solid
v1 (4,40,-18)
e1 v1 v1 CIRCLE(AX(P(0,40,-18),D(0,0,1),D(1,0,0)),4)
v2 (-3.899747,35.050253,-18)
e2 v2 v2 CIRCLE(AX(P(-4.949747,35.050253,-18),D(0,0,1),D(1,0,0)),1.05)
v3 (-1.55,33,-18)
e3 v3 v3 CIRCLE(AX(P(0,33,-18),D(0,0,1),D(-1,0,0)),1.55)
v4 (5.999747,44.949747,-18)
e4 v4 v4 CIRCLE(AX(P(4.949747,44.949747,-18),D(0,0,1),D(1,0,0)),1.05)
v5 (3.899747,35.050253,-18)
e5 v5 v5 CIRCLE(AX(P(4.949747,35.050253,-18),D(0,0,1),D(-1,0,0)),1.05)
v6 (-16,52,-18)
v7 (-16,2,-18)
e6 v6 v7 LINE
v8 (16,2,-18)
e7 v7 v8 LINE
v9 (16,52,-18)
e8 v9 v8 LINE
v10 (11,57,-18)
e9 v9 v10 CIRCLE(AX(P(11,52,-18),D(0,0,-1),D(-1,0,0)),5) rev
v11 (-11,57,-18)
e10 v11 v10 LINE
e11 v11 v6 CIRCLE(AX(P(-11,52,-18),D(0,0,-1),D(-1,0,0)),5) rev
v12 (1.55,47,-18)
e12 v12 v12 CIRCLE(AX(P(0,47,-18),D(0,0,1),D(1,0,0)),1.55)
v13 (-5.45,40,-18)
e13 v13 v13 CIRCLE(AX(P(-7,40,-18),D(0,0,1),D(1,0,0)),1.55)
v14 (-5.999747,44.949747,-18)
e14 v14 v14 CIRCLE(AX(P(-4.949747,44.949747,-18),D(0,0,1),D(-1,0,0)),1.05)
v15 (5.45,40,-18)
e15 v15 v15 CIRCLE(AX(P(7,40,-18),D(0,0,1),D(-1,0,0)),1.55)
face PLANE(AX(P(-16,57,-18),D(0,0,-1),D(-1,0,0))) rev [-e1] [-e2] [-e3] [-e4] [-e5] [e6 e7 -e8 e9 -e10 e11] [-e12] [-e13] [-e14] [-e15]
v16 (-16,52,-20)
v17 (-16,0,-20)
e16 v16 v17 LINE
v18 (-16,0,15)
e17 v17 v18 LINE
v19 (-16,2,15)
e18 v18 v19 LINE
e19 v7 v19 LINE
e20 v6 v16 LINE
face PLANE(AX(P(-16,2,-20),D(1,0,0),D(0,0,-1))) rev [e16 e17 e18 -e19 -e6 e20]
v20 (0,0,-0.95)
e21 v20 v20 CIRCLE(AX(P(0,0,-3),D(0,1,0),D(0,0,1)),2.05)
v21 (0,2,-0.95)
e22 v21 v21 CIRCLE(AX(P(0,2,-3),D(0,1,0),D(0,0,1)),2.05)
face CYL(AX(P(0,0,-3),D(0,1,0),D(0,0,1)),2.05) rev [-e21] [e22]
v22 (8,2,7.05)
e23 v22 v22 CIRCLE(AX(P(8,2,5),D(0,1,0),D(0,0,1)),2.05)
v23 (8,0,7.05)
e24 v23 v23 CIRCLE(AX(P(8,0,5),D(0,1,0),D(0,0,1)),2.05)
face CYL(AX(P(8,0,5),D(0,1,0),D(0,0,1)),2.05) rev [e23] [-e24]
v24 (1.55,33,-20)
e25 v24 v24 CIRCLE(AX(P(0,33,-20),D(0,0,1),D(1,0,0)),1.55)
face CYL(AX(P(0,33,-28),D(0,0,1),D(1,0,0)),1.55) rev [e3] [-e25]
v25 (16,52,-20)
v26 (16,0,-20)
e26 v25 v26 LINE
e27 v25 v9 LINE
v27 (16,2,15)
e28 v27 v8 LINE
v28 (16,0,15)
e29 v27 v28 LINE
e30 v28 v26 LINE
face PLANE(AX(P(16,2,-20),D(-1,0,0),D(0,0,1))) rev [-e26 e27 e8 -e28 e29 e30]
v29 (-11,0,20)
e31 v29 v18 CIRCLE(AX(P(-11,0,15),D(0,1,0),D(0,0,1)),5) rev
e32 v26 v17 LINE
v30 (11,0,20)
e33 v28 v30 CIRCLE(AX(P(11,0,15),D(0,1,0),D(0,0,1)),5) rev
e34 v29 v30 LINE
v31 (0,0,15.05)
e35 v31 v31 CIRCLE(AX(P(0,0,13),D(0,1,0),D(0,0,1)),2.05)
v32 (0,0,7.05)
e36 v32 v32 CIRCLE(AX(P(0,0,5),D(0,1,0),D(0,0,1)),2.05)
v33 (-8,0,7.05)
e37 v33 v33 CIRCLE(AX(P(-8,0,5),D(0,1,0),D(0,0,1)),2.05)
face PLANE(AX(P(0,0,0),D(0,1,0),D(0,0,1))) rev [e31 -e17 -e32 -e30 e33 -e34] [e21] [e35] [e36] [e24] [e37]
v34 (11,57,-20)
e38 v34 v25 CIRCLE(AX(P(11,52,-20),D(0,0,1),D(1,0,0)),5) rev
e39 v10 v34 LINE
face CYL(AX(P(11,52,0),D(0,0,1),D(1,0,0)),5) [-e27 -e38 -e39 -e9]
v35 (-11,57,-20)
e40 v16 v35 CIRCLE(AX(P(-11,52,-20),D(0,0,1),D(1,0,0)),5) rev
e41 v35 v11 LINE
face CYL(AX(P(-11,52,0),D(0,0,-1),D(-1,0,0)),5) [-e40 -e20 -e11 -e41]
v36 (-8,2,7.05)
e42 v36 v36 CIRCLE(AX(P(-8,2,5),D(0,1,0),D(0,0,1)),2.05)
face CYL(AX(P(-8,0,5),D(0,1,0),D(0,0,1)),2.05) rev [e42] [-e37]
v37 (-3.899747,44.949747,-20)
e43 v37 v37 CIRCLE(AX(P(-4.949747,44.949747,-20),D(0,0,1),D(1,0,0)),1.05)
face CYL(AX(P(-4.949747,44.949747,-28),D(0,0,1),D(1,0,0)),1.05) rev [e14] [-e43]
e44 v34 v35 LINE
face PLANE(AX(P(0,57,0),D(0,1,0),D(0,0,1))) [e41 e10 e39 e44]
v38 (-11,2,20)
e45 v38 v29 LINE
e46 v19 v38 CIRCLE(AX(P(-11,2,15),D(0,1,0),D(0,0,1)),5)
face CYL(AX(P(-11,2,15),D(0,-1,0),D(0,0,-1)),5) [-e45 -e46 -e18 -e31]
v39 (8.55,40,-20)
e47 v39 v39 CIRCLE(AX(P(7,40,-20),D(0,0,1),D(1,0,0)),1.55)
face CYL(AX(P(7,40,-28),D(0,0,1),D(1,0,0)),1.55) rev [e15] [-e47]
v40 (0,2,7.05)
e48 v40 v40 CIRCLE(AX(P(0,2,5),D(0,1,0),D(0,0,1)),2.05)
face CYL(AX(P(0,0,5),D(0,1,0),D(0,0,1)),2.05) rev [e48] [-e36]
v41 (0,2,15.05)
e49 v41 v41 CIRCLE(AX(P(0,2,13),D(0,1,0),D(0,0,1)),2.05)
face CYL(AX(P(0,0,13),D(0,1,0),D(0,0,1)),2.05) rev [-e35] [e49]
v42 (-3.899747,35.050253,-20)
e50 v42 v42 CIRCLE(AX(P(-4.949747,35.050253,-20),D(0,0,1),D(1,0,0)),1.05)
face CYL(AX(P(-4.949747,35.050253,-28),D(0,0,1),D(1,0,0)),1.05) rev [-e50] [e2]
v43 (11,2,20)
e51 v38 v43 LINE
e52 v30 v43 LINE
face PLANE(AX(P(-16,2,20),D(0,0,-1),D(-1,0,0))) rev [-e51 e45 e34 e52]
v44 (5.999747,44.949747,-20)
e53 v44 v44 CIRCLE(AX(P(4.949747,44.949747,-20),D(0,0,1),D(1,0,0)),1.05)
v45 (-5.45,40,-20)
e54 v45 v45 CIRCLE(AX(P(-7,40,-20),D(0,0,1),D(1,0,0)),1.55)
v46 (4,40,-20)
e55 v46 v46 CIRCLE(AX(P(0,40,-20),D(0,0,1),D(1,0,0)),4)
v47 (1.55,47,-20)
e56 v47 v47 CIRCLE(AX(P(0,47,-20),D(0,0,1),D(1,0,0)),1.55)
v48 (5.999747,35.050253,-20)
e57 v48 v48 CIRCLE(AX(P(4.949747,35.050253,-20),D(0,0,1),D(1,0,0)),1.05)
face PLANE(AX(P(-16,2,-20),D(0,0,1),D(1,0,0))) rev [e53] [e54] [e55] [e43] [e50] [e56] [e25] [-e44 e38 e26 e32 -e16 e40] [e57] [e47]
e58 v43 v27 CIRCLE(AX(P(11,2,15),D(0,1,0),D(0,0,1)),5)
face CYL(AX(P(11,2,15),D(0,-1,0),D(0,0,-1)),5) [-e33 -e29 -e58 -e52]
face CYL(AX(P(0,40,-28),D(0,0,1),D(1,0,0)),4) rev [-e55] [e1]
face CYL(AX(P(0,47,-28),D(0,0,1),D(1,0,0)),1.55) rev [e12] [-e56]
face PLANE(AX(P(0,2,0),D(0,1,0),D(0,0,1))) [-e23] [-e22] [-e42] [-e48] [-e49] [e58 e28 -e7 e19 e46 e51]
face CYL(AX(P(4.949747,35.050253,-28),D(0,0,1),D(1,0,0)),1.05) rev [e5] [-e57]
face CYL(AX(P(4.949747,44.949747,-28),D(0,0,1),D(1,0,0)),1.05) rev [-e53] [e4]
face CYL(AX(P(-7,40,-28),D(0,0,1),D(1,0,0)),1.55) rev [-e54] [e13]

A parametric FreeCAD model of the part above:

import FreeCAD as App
import Part
import Sketcher


def edges_at(feature, points):
    """Names of the edges that pass closest to the given points."""
    edges = feature.Shape.Edges
    near = lambda p: min(range(len(edges)), key=lambda i: edges[i].distToShape(Part.Vertex(*p))[0])
    return sorted({f"Edge{near(p) + 1}" for p in points})

doc = App.newDocument("Part")
body = doc.addObject("PartDesign::Body", "Body")

# Sketch on XZ plane
sketch1 = doc.addObject("Sketcher::SketchObject", "Sketch")
body.addObject(sketch1)
sketch1.AttachmentSupport = (doc.XZ_Plane, [""])
sketch1.MapMode = "FlatFace"
sketch1.addGeometry([
    Part.LineSegment(App.Vector(-16, -20, 0), App.Vector(-16, 20, 0)),
    Part.LineSegment(App.Vector(-16, 20, 0), App.Vector(16, 20, 0)),
    Part.LineSegment(App.Vector(16, 20, 0), App.Vector(16, -20, 0)),
    Part.LineSegment(App.Vector(16, -20, 0), App.Vector(-16, -20, 0)),
], False)
sketch1.addConstraint([
    Sketcher.Constraint("Coincident", 0, 2, 1, 1),
    Sketcher.Constraint("Coincident", 1, 2, 2, 1),
    Sketcher.Constraint("Coincident", 2, 2, 3, 1),
    Sketcher.Constraint("Coincident", 3, 2, 0, 1),
    Sketcher.Constraint("Vertical", 0),
    Sketcher.Constraint("Horizontal", 1),
    Sketcher.Constraint("Vertical", 2),
    Sketcher.Constraint("Horizontal", 3),
    Sketcher.Constraint("Symmetric", 0, 2, 2, 2, -1, 1),
    Sketcher.Constraint("DistanceX", 1, 1, 1, 2, 32.0),
    Sketcher.Constraint("DistanceY", 0, 1, 0, 2, 40.0),
])
pad1 = doc.addObject("PartDesign::Pad", "Pad")
body.addObject(pad1)
pad1.Profile = sketch1
pad1.Length = 2
pad1.Reversed = True

# Sketch on XZ plane
sketch2 = doc.addObject("Sketcher::SketchObject", "Sketch001")
body.addObject(sketch2)
sketch2.AttachmentSupport = (doc.XZ_Plane, [""])
sketch2.MapMode = "FlatFace"
sketch2.AttachmentOffset = App.Placement(App.Vector(0, 0, -2), App.Rotation())
sketch2.addGeometry([
    Part.LineSegment(App.Vector(-16, -20, 0), App.Vector(-16, -18, 0)),
    Part.LineSegment(App.Vector(-16, -18, 0), App.Vector(16, -18, 0)),
    Part.LineSegment(App.Vector(16, -18, 0), App.Vector(16, -20, 0)),
    Part.LineSegment(App.Vector(16, -20, 0), App.Vector(-16, -20, 0)),
], False)
sketch2.addConstraint([
    Sketcher.Constraint("Coincident", 0, 2, 1, 1),
    Sketcher.Constraint("Coincident", 1, 2, 2, 1),
    Sketcher.Constraint("Coincident", 2, 2, 3, 1),
    Sketcher.Constraint("Coincident", 3, 2, 0, 1),
    Sketcher.Constraint("Vertical", 0),
    Sketcher.Constraint("Horizontal", 1),
    Sketcher.Constraint("Vertical", 2),
    Sketcher.Constraint("Horizontal", 3),
    Sketcher.Constraint("DistanceX", 1, 1, 1, 2, 32.0),
    Sketcher.Constraint("DistanceY", 0, 1, 0, 2, 2.0),
    Sketcher.Constraint("DistanceX", 0, 2, -1, 1, 16.0),
    Sketcher.Constraint("DistanceY", 0, 2, -1, 1, 18.0),
])
pad2 = doc.addObject("PartDesign::Pad", "Pad001")
body.addObject(pad2)
pad2.Profile = sketch2
pad2.Length = 55
pad2.Reversed = True

# Sketch on XZ plane
sketch3 = doc.addObject("Sketcher::SketchObject", "Sketch002")
body.addObject(sketch3)
sketch3.AttachmentSupport = (doc.XZ_Plane, [""])
sketch3.MapMode = "FlatFace"
sketch3.AttachmentOffset = App.Placement(App.Vector(0, 0, -2), App.Rotation())
sketch3.addGeometry([
    Part.Circle(App.Vector(0, 5, 0), App.Vector(0, 0, 1), 2),  # 0
    Part.Circle(App.Vector(-8, 5, 0), App.Vector(0, 0, 1), 2),  # 1
    Part.Circle(App.Vector(8, 5, 0), App.Vector(0, 0, 1), 2),  # 2
    Part.Circle(App.Vector(0, -3, 0), App.Vector(0, 0, 1), 2),  # 3
    Part.Circle(App.Vector(0, 13, 0), App.Vector(0, 0, 1), 2),  # 4
], False)
sketch3.addConstraint([
    Sketcher.Constraint("Equal", 0, 1),
    Sketcher.Constraint("Equal", 1, 2),
    Sketcher.Constraint("Equal", 2, 3),
    Sketcher.Constraint("Equal", 3, 4),
    Sketcher.Constraint("Symmetric", 1, 3, 2, 3, -2),
    Sketcher.Constraint("PointOnObject", 0, 3, -2),
    Sketcher.Constraint("PointOnObject", 3, 3, -2),
    Sketcher.Constraint("PointOnObject", 4, 3, -2),
    Sketcher.Constraint("Horizontal", 0, 3, 1, 3),
    Sketcher.Constraint("Diameter", 0, 4.1),
    Sketcher.Constraint("DistanceY", -1, 1, 0, 3, 5.0),
    Sketcher.Constraint("DistanceX", 1, 3, -1, 1, 8.0),
    Sketcher.Constraint("DistanceY", 3, 3, -1, 1, 3.0),
    Sketcher.Constraint("DistanceY", -1, 1, 4, 3, 13.0),
])
pocket1 = doc.addObject("PartDesign::Pocket", "Pocket")
body.addObject(pocket1)
pocket1.Profile = sketch3
pocket1.Type = "ThroughAll"
pocket1.Reversed = True
doc.recompute()

fillet = doc.addObject("PartDesign::Fillet", "Fillet")
body.addObject(fillet)
fillet.Base = (pocket1, edges_at(pocket1, [
    (-16, 57, -19),
    (16, 57, -19),
    (16, 1, 20),
    (-16, 1, 20),
]))
fillet.Radius = 5

# Sketch on XY plane
sketch4 = doc.addObject("Sketcher::SketchObject", "Sketch003")
body.addObject(sketch4)
sketch4.AttachmentSupport = (doc.XY_Plane, [""])
sketch4.MapMode = "FlatFace"
sketch4.AttachmentOffset = App.Placement(App.Vector(0, 0, -18), App.Rotation())
sketch4.addGeometry([
    Part.Circle(App.Vector(0, 40, 0), App.Vector(0, 0, 1), 4),  # 0
    Part.Circle(App.Vector(0, 47, 0), App.Vector(0, 0, 1), 1.6),  # 1
    Part.Circle(App.Vector(4.9, 44.9, 0), App.Vector(0, 0, 1), 1.1),  # 2
    Part.Circle(App.Vector(7, 40, 0), App.Vector(0, 0, 1), 1.6),  # 3
    Part.Circle(App.Vector(4.9, 35.1, 0), App.Vector(0, 0, 1), 1.1),  # 4
    Part.Circle(App.Vector(0, 33, 0), App.Vector(0, 0, 1), 1.6),  # 5
    Part.Circle(App.Vector(-4.9, 35.1, 0), App.Vector(0, 0, 1), 1.1),  # 6
    Part.Circle(App.Vector(-4.9, 44.9, 0), App.Vector(0, 0, 1), 1.1),  # 7
    Part.Circle(App.Vector(-7, 40, 0), App.Vector(0, 0, 1), 1.6),  # 8
], False)
sketch4.addConstraint([
    Sketcher.Constraint("Equal", 1, 3),
    Sketcher.Constraint("Equal", 2, 4),
    Sketcher.Constraint("Equal", 3, 5),
    Sketcher.Constraint("Equal", 4, 6),
    Sketcher.Constraint("Equal", 6, 7),
    Sketcher.Constraint("Equal", 5, 8),
    Sketcher.Constraint("Symmetric", 4, 3, 6, 3, -2),
    Sketcher.Constraint("Symmetric", 2, 3, 7, 3, -2),
    Sketcher.Constraint("Symmetric", 3, 3, 8, 3, -2),
    Sketcher.Constraint("PointOnObject", 0, 3, -2),
    Sketcher.Constraint("PointOnObject", 1, 3, -2),
    Sketcher.Constraint("PointOnObject", 5, 3, -2),
    Sketcher.Constraint("Horizontal", 0, 3, 3, 3),
    Sketcher.Constraint("Vertical", 2, 3, 4, 3),
    Sketcher.Constraint("Diameter", 0, 8.0),
    Sketcher.Constraint("Diameter", 1, 3.1),
    Sketcher.Constraint("Diameter", 2, 2.1),
    Sketcher.Constraint("DistanceY", -1, 1, 0, 3, 40.0),
    Sketcher.Constraint("DistanceY", -1, 1, 1, 3, 47.0),
    Sketcher.Constraint("DistanceX", -1, 1, 3, 3, 7.0),
    Sketcher.Constraint("DistanceY", -1, 1, 5, 3, 33.0),
    Sketcher.Constraint("DistanceX", -1, 1, 2, 3, 4.949747),
    Sketcher.Constraint("DistanceY", -1, 1, 2, 3, 44.949747),
    Sketcher.Constraint("DistanceY", -1, 1, 4, 3, 35.050253),
])
pocket2 = doc.addObject("PartDesign::Pocket", "Pocket001")
body.addObject(pocket2)
pocket2.Profile = sketch4
pocket2.Length = 10

doc.recompute()
